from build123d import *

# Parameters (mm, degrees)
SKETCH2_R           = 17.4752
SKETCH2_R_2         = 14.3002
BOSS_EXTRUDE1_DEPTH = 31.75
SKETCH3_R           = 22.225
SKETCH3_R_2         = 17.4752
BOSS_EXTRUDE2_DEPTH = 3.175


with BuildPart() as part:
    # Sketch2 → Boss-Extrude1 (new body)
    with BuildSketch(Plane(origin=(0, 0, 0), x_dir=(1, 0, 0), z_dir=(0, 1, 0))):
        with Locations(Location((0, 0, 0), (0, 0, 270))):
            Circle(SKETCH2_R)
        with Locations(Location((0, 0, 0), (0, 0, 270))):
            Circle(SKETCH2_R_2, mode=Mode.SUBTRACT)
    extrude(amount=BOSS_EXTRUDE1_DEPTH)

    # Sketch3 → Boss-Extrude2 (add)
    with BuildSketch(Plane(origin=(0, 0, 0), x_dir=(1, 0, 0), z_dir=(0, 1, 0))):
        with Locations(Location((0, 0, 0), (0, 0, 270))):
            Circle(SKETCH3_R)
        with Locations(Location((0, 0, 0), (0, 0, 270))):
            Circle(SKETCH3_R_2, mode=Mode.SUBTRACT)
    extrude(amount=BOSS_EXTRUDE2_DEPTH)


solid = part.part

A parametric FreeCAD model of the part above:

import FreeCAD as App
import Part
import Sketcher
Q = App.Units.Quantity

doc = App.newDocument("Part")
body = doc.addObject("PartDesign::Body", "Body")

# Sketch on XZ plane
sketch1 = body.newObject("Sketcher::SketchObject", "Sketch")
sketch1.AttachmentSupport = (doc.getObject("XZ_Plane"), [""])
sketch1.MapMode = "FlatFace"
sketch1.addGeometry([
    Part.Circle(App.Vector(0, 0, 0), App.Vector(0, 0, 1), 17),
    Part.Circle(App.Vector(0, 0, 0), App.Vector(0, 0, 1), 14),
], False)
sketch1.addConstraint([
    Sketcher.Constraint("Coincident", 0, 3, -1, 1),
    Sketcher.Constraint("Coincident", 1, 3, -1, 1),
    Sketcher.Constraint("Diameter", 0, Q("1.376 in")),
    Sketcher.Constraint("Diameter", 1, Q("1.126 in")),
])
pad1 = body.newObject("PartDesign::Pad", "Pad")
pad1.Profile = sketch1
pad1.Length = Q("1.25 in")
pad1.Reversed = True

# Sketch on XZ plane
sketch2 = body.newObject("Sketcher::SketchObject", "Sketch001")
sketch2.AttachmentSupport = (doc.getObject("XZ_Plane"), [""])
sketch2.MapMode = "FlatFace"
sketch2.addGeometry([
    Part.Circle(App.Vector(0, 0, 0), App.Vector(0, 0, 1), 22),
    Part.Circle(App.Vector(0, 0, 0), App.Vector(0, 0, 1), 17),
], False)
sketch2.addConstraint([
    Sketcher.Constraint("Coincident", 0, 3, -1, 1),
    Sketcher.Constraint("Coincident", 1, 3, -1, 1),
    Sketcher.Constraint("Diameter", 0, Q("1.75 in")),
    Sketcher.Constraint("Diameter", 1, Q("1.376 in")),
])
pad2 = body.newObject("PartDesign::Pad", "Pad001")
pad2.Profile = sketch2
pad2.Length = Q("0.125 in")
pad2.Reversed = True

doc.recompute()
